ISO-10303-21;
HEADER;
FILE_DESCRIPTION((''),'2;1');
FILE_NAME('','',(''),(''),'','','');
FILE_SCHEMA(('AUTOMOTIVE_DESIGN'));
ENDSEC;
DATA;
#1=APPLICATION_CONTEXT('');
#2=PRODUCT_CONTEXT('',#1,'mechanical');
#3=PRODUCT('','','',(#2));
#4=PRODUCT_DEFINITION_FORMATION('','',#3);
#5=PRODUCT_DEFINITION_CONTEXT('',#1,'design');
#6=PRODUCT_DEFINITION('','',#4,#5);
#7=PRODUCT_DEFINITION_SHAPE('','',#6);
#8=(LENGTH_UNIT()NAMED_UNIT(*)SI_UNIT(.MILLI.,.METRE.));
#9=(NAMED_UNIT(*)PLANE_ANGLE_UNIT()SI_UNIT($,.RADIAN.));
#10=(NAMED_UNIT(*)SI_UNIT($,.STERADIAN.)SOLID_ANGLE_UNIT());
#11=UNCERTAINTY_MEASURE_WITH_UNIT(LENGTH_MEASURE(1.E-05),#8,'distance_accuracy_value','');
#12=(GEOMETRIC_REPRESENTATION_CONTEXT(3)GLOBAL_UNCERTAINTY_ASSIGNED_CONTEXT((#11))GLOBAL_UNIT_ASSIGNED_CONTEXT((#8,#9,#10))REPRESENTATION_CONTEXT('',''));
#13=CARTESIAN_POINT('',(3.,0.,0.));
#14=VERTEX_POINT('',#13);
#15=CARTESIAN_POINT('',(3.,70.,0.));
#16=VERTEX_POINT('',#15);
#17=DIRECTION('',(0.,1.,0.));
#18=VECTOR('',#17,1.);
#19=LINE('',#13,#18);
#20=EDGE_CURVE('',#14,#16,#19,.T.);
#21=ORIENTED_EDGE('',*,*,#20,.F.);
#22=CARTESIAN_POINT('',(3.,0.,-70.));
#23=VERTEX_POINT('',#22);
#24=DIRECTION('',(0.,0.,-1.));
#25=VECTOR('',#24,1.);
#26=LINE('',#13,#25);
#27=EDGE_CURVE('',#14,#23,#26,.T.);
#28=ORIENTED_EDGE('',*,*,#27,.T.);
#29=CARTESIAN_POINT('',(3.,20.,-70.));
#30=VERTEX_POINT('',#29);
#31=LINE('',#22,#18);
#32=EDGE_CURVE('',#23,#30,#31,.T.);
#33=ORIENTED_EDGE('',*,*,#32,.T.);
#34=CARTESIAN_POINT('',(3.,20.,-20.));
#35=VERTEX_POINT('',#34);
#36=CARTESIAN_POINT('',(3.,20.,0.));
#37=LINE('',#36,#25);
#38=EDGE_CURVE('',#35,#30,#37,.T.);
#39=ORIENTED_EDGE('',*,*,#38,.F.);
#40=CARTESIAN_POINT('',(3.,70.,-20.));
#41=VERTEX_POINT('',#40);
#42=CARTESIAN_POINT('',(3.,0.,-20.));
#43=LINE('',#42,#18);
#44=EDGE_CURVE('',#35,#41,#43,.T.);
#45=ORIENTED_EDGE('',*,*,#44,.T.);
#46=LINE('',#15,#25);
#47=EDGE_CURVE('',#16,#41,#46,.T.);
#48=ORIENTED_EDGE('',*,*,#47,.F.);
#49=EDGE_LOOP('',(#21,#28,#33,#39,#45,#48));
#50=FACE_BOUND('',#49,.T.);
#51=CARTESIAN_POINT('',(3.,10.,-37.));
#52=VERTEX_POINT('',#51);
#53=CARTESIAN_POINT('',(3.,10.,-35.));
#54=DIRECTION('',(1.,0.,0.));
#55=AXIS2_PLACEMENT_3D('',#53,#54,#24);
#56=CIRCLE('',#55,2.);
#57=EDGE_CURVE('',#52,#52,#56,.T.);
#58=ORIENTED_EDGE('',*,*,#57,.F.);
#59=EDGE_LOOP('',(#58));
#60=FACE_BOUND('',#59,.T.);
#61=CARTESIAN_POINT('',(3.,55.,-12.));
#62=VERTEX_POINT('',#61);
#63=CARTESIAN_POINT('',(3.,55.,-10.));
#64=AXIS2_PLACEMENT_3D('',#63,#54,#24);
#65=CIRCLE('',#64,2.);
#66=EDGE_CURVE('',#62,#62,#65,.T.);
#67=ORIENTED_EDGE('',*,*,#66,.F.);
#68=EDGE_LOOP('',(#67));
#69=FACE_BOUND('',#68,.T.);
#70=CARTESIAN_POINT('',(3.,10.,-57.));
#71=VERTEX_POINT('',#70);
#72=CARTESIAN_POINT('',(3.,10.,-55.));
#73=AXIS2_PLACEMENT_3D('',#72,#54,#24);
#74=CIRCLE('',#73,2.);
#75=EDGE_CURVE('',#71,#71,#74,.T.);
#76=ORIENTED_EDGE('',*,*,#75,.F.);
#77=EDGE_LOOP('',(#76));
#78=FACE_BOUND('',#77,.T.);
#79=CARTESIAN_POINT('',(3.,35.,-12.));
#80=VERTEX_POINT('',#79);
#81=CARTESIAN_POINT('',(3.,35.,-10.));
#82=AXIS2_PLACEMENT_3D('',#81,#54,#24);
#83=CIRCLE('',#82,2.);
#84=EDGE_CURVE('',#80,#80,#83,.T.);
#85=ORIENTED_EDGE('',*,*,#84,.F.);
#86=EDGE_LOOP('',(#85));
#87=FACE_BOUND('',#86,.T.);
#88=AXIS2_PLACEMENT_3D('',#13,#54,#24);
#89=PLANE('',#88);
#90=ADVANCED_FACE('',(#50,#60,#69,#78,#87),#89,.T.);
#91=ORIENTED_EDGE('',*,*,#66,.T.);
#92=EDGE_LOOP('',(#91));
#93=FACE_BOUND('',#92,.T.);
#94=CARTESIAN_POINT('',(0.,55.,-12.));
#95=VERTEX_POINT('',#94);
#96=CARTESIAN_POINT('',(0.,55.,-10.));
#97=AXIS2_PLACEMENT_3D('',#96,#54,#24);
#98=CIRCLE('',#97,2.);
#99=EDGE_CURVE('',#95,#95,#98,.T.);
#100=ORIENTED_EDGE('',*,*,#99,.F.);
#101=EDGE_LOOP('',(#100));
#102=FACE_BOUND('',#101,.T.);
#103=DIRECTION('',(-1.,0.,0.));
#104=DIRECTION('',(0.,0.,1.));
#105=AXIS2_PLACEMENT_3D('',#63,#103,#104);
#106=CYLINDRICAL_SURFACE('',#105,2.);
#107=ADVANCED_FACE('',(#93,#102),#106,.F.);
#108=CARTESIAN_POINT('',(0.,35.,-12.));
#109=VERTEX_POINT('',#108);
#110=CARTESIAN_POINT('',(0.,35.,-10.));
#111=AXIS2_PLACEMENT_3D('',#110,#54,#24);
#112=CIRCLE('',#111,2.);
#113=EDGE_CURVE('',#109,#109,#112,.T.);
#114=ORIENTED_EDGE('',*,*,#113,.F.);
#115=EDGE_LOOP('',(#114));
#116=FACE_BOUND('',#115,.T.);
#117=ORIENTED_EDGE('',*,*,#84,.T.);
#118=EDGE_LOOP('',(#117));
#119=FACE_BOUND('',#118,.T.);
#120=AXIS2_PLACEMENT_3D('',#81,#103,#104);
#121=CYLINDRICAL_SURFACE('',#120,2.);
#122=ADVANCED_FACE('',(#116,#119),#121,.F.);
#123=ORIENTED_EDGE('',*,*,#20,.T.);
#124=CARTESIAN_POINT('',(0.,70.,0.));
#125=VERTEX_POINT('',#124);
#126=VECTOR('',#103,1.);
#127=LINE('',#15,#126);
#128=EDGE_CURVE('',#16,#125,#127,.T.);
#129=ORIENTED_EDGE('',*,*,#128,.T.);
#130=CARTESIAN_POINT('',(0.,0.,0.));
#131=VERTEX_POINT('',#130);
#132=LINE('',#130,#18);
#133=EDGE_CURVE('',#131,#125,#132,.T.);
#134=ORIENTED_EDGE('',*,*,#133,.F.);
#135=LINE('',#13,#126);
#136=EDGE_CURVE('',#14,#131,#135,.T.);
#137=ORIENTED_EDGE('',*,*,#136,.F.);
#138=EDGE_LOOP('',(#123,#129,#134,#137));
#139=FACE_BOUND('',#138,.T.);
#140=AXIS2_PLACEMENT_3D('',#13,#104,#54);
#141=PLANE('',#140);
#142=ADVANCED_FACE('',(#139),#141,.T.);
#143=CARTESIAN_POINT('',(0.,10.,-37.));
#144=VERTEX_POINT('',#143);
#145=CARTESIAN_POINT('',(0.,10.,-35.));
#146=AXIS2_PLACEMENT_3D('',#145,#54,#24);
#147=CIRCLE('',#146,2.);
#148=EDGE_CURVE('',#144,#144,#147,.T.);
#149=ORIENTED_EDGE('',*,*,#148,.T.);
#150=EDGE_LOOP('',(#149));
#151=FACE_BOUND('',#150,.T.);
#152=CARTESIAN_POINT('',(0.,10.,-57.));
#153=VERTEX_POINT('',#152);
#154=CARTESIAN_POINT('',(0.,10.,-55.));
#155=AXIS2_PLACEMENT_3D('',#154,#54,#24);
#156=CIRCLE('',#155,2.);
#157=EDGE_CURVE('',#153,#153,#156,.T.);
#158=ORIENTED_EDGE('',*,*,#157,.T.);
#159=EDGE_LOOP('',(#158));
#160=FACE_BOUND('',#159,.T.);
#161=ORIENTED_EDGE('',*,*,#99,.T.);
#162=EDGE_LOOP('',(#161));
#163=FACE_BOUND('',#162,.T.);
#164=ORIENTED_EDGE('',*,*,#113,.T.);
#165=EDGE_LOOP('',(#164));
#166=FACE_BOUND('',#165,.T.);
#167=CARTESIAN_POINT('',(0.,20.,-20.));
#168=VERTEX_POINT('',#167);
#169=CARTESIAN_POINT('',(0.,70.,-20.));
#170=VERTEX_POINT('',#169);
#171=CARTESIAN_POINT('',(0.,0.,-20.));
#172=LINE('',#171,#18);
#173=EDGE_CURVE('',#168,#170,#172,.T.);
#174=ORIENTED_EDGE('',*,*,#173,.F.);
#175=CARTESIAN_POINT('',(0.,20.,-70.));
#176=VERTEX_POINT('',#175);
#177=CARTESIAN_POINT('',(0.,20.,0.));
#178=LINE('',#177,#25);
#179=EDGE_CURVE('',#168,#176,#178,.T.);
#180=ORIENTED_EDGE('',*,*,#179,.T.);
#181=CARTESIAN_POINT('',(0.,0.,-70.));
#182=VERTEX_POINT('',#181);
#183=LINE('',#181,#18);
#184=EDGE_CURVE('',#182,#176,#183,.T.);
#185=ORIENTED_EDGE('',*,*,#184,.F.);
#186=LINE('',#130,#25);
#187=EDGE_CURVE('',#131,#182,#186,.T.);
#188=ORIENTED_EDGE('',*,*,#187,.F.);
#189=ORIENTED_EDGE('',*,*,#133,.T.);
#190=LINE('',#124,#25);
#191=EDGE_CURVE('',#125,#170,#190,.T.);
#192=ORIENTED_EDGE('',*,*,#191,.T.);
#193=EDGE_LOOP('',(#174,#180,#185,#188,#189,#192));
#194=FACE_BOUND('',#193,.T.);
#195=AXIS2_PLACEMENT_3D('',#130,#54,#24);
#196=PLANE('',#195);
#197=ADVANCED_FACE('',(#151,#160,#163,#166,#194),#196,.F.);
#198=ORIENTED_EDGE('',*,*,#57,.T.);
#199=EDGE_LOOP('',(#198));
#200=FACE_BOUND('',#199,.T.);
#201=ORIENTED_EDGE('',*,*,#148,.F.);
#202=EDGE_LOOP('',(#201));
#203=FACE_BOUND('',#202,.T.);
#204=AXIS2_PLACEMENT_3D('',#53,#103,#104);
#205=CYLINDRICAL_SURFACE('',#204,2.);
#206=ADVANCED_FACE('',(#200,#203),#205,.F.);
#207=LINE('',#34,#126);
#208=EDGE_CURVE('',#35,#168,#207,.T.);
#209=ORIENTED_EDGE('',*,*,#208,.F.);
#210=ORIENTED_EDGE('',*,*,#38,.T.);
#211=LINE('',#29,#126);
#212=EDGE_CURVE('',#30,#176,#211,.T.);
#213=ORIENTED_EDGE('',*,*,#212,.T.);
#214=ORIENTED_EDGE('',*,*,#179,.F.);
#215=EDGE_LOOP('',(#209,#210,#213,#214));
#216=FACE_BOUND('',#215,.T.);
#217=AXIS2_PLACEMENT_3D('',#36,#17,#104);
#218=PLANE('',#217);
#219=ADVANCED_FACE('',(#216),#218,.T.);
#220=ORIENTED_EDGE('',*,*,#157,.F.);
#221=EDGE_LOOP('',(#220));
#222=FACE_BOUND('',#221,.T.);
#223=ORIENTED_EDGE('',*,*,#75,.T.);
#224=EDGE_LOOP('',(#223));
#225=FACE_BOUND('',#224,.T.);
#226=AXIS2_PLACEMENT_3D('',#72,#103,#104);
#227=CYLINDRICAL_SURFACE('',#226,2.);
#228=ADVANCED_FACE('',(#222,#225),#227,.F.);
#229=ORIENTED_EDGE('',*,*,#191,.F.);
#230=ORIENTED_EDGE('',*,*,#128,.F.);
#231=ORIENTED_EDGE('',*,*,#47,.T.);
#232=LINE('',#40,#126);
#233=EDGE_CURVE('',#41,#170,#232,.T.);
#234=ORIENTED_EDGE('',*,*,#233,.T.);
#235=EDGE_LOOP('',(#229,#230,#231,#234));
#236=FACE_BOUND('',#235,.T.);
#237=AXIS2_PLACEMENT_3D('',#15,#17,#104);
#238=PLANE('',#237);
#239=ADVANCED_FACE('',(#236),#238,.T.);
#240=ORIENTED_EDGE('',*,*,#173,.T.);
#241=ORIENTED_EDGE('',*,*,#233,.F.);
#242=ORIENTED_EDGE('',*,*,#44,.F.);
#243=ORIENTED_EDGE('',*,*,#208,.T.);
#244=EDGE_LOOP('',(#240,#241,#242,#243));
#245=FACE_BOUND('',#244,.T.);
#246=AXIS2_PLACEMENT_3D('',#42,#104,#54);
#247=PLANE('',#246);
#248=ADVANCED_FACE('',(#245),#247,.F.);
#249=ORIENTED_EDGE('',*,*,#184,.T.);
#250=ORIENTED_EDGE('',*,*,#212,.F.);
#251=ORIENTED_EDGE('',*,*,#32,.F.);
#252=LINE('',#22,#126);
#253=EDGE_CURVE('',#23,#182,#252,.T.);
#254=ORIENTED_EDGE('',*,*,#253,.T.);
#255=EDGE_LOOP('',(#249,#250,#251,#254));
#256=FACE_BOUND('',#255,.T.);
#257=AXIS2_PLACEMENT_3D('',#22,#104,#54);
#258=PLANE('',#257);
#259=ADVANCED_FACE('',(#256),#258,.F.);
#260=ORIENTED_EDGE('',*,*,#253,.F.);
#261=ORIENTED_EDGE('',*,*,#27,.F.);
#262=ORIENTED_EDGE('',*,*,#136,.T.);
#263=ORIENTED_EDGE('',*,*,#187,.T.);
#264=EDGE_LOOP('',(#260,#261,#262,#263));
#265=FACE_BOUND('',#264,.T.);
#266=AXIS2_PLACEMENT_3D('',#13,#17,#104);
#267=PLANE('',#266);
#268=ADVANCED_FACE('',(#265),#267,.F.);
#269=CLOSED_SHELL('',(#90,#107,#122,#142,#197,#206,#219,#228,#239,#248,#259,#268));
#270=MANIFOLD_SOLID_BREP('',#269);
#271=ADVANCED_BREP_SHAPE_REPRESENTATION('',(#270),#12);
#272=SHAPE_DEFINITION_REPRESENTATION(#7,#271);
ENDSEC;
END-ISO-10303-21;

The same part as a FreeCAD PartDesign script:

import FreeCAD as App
import Part
import Sketcher


def add_polygon(sketch, points):
    """Adds a closed chain of lines whose ends are joined by coincident constraints."""
    first, n = sketch.GeometryCount, len(points)
    for a, b in zip(points, points[1:] + points[:1]):
        sketch.addGeometry(Part.LineSegment(App.Vector(*a, 0), App.Vector(*b, 0)), False)
    for i in range(n):
        sketch.addConstraint(Sketcher.Constraint("Coincident", first + i, 2, first + (i + 1) % n, 1))

doc = App.newDocument("Part")
body = doc.addObject("PartDesign::Body", "Body")

# Sketch on YZ plane
sketch1 = body.newObject("Sketcher::SketchObject", "Sketch")
sketch1.AttachmentSupport = (doc.getObject("YZ_Plane"), [""])
sketch1.MapMode = "FlatFace"
add_polygon(sketch1, [(70, 0), (0, 0), (0, -70), (20, -70), (20, -20), (70, -20)])  # lines 0-5
sketch1.addGeometry(Part.Circle(App.Vector(35, -10, 0), App.Vector(0, 0, 1), 2), False)  # 6
sketch1.addGeometry(Part.Circle(App.Vector(55, -10, 0), App.Vector(0, 0, 1), 2), False)  # 7
sketch1.addGeometry(Part.Circle(App.Vector(10, -55, 0), App.Vector(0, 0, 1), 2), False)  # 8
sketch1.addGeometry(Part.Circle(App.Vector(10, -35, 0), App.Vector(0, 0, 1), 2), False)  # 9
sketch1.addConstraint(Sketcher.Constraint("Horizontal", 0))
sketch1.addConstraint(Sketcher.Constraint("Vertical", 1))
sketch1.addConstraint(Sketcher.Constraint("Horizontal", 2))
sketch1.addConstraint(Sketcher.Constraint("Vertical", 3))
sketch1.addConstraint(Sketcher.Constraint("Horizontal", 4))
sketch1.addConstraint(Sketcher.Constraint("Vertical", 5))
sketch1.addConstraint(Sketcher.Constraint("Coincident", 0, 2, -1, 1))
sketch1.addConstraint(Sketcher.Constraint("Equal", 6, 7))
sketch1.addConstraint(Sketcher.Constraint("Equal", 7, 8))
sketch1.addConstraint(Sketcher.Constraint("Equal", 8, 9))
sketch1.addConstraint(Sketcher.Constraint("Horizontal", 6, 3, 7, 3))
sketch1.addConstraint(Sketcher.Constraint("Vertical", 8, 3, 9, 3))
sketch1.addConstraint(Sketcher.Constraint("Equal", 0, 1))
sketch1.addConstraint(Sketcher.Constraint("Equal", 4, 3))
sketch1.addConstraint(Sketcher.Constraint("Diameter", 6, 4.0))
sketch1.addConstraint(Sketcher.Constraint("DistanceX", 0, 2, 0, 1, 70.0))
sketch1.addConstraint(Sketcher.Constraint("DistanceX", 2, 1, 2, 2, 20.0))
sketch1.addConstraint(Sketcher.Constraint("DistanceX", -1, 1, 6, 3, 35.0))
sketch1.addConstraint(Sketcher.Constraint("DistanceY", 6, 3, -1, 1, 10.0))
sketch1.addConstraint(Sketcher.Constraint("DistanceX", -1, 1, 7, 3, 55.0))
sketch1.addConstraint(Sketcher.Constraint("DistanceX", -1, 1, 8, 3, 10.0))
sketch1.addConstraint(Sketcher.Constraint("DistanceY", 8, 3, -1, 1, 55.0))
sketch1.addConstraint(Sketcher.Constraint("DistanceY", 9, 3, -1, 1, 35.0))
pad1 = body.newObject("PartDesign::Pad", "Pad")
pad1.Profile = sketch1
pad1.Length = 3

doc.recompute()
